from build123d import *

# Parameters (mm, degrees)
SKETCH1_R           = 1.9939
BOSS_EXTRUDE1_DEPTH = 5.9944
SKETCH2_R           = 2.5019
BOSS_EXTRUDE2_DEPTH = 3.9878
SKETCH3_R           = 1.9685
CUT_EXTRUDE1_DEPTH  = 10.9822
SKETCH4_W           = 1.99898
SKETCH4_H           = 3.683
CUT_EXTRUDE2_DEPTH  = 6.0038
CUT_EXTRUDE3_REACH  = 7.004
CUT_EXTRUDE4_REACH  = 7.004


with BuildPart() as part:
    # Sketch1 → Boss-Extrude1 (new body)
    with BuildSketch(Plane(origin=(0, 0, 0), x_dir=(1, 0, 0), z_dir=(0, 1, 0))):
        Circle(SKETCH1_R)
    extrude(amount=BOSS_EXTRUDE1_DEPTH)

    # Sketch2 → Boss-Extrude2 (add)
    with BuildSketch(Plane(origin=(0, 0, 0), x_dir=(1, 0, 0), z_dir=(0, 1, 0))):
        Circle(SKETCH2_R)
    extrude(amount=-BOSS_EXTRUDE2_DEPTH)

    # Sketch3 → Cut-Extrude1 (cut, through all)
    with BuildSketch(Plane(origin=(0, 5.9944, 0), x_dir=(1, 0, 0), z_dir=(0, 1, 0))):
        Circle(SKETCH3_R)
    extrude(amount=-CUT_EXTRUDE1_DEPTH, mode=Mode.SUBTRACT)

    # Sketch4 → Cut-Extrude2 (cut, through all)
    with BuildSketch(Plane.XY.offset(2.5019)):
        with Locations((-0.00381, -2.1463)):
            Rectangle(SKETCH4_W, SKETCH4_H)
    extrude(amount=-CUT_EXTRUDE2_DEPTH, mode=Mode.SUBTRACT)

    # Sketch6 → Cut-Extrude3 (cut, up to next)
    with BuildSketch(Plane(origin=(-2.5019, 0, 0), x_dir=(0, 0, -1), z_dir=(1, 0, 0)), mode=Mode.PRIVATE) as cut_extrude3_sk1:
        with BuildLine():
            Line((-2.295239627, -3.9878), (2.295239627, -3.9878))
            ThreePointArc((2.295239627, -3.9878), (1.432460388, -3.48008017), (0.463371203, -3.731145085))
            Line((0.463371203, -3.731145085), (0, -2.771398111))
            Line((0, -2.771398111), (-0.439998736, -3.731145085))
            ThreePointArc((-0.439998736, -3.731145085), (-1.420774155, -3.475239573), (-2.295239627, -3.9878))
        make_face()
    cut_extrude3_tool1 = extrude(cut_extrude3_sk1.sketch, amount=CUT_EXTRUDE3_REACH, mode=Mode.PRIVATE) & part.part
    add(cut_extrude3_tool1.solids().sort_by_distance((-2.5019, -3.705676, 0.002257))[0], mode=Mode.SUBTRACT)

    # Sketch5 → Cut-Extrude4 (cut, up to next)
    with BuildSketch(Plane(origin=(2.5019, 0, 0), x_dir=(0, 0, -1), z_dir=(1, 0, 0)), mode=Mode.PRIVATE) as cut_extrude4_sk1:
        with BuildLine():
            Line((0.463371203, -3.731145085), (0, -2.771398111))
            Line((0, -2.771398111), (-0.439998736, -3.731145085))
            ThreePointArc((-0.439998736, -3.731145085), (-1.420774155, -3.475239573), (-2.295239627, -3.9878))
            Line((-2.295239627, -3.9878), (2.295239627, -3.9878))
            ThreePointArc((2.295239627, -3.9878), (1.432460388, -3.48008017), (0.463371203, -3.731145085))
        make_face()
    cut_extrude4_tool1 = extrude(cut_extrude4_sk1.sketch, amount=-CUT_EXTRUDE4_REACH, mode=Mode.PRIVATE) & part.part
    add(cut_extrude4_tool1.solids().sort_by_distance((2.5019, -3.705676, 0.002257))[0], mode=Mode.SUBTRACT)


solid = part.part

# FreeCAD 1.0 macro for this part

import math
import FreeCAD as App
import Part
import Sketcher

V = App.Vector
Q = App.Units.Quantity


def add_polygon(sketch, points):
    """Adds a closed chain of lines whose ends are joined by coincident constraints."""
    first, n = sketch.GeometryCount, len(points)
    for a, b in zip(points, points[1:] + points[:1]):
        sketch.addGeometry(Part.LineSegment(App.Vector(*a, 0), App.Vector(*b, 0)), False)
    for i in range(n):
        sketch.addConstraint(Sketcher.Constraint("Coincident", first + i, 2, first + (i + 1) % n, 1))

doc = App.newDocument("Part")
body = doc.addObject("PartDesign::Body", "Body")

# Sketch on XZ plane
sketch1 = doc.addObject("Sketcher::SketchObject", "Sketch")
body.addObject(sketch1)
sketch1.AttachmentSupport = (doc.XZ_Plane, [""])
sketch1.MapMode = "FlatFace"
sketch1.addGeometry(Part.Circle(V(0, 0, 0), V(0, 0, 1), 2), False)
sketch1.addConstraint([
    Sketcher.Constraint("Coincident", 0, 3, -1, 1),
    Sketcher.Constraint("Diameter", 0, Q("0.157 in")),
])
pad1 = doc.addObject("PartDesign::Pad", "Pad")
body.addObject(pad1)
pad1.Profile = sketch1
pad1.Length = Q("0.236 in")
pad1.Reversed = True

# Sketch on XZ plane
sketch2 = doc.addObject("Sketcher::SketchObject", "Sketch001")
body.addObject(sketch2)
sketch2.AttachmentSupport = (doc.XZ_Plane, [""])
sketch2.MapMode = "FlatFace"
sketch2.addGeometry(Part.Circle(V(0, 0, 0), V(0, 0, 1), 2.5), False)
sketch2.addConstraint([
    Sketcher.Constraint("Coincident", 0, 3, -1, 1),
    Sketcher.Constraint("Diameter", 0, Q("0.197 in")),
])
pad2 = doc.addObject("PartDesign::Pad", "Pad001")
body.addObject(pad2)
pad2.Profile = sketch2
pad2.Length = Q("0.157 in")

# Sketch on XZ plane
sketch3 = doc.addObject("Sketcher::SketchObject", "Sketch002")
body.addObject(sketch3)
sketch3.AttachmentSupport = (doc.XZ_Plane, [""])
sketch3.MapMode = "FlatFace"
sketch3.AttachmentOffset = App.Placement(V(0, 0, -0.236 * 25.4), App.Rotation())
sketch3.addGeometry(Part.Circle(V(0, 0, 0), V(0, 0, 1), 2), False)
sketch3.addConstraint([
    Sketcher.Constraint("Coincident", 0, 3, -1, 1),
    Sketcher.Constraint("Diameter", 0, Q("0.155 in")),
])
pocket1 = doc.addObject("PartDesign::Pocket", "Pocket")
body.addObject(pocket1)
pocket1.Profile = sketch3
pocket1.Type = "ThroughAll"
pocket1.Reversed = True

# Sketch on XY plane
sketch4 = doc.addObject("Sketcher::SketchObject", "Sketch003")
body.addObject(sketch4)
sketch4.AttachmentSupport = (doc.XY_Plane, [""])
sketch4.MapMode = "FlatFace"
sketch4.AttachmentOffset = App.Placement(V(0, 0, 0.0985 * 25.4), App.Rotation())
add_polygon(sketch4, [(-1, -0.3), (-1, -4), (1, -4), (1, -0.3)])  # lines 0-3
sketch4.addConstraint([
    Sketcher.Constraint("Vertical", 0),
    Sketcher.Constraint("Horizontal", 1),
    Sketcher.Constraint("Vertical", 2),
    Sketcher.Constraint("Horizontal", 3),
    Sketcher.Constraint("DistanceY", 0, 2, 0, 1, Q("0.145 in")),
    Sketcher.Constraint("DistanceX", 1, 1, 1, 2, Q("0.0787 in")),
    Sketcher.Constraint("DistanceY", 0, 2, -1, 1, Q("0.157 in")),
    Sketcher.Constraint("DistanceX", 0, 2, -1, 1, Q("0.0395 in")),
])
pocket2 = doc.addObject("PartDesign::Pocket", "Pocket001")
body.addObject(pocket2)
pocket2.Profile = sketch4
pocket2.Type = "ThroughAll"

# Sketch on YZ plane
sketch5 = doc.addObject("Sketcher::SketchObject", "Sketch004")
body.addObject(sketch5)
sketch5.AttachmentSupport = (doc.YZ_Plane, [""])
sketch5.MapMode = "FlatFace"
sketch5.AttachmentOffset = App.Placement(V(0, 0, -0.0985 * 25.4), App.Rotation())
sketch5.addGeometry([
    Part.LineSegment(V(-4, 2.3, 0), V(-4, -2.3, 0)),  # 0
    Part.ArcOfCircle(Part.Circle(V(-4.8, -1.3, 0), V(0, 0, 1), 1.3), math.radians(-53), math.radians(37)),  # 1
    Part.LineSegment(V(-3.7, -0.5, 0), V(-2.8, 0, 0)),  # 2
    Part.LineSegment(V(-2.8, 0, 0), V(-3.7, 0.4, 0)),  # 3
    Part.ArcOfCircle(Part.Circle(V(-4.8, 1.2, 0), V(0, 0, 1), 1.3), math.radians(-37), math.radians(53)),  # 4
], False)
sketch5.addConstraint([
    Sketcher.Constraint("Coincident", 0, 2, 1, 1),
    Sketcher.Constraint("Coincident", 1, 2, 2, 1),
    Sketcher.Constraint("Coincident", 2, 2, 3, 1),
    Sketcher.Constraint("Coincident", 3, 2, 4, 1),
    Sketcher.Constraint("Coincident", 4, 2, 0, 1),
    Sketcher.Constraint("Vertical", 0),
    Sketcher.Constraint("PointOnObject", 2, 2, -1),
    Sketcher.Constraint("Vertical", 1, 2, 3, 2),
    Sketcher.Constraint("DistanceX", 0, 2, -1, 1, Q("0.157 in")),
    Sketcher.Constraint("Radius", 1, 1.307978),
    Sketcher.Constraint("Radius", 4, 1.324347),
    Sketcher.Constraint("Distance", 3, 1.0558),
    Sketcher.Constraint("DistanceY", 0, 2, 0, 1, 4.590479),
    Sketcher.Constraint("DistanceX", 2, 2, -1, 1, 2.771398),
    Sketcher.Constraint("DistanceY", -1, 1, 3, 2, 0.439999),
    Sketcher.Constraint("Distance", 2, 1.065752),
    Sketcher.Constraint("DistanceY", -1, 1, 4, 3, 1.239292),
])
pocket3 = doc.addObject("PartDesign::Pocket", "Pocket002")
body.addObject(pocket3)
pocket3.Profile = sketch5
pocket3.Length = Q("0.059 in")
pocket3.Reversed = True

# Sketch on YZ plane
sketch6 = doc.addObject("Sketcher::SketchObject", "Sketch005")
body.addObject(sketch6)
sketch6.AttachmentSupport = (doc.YZ_Plane, [""])
sketch6.MapMode = "FlatFace"
sketch6.AttachmentOffset = App.Placement(V(0, 0, 0.0985 * 25.4), App.Rotation())
sketch6.addGeometry([
    Part.LineSegment(V(-3.7, -0.5, 0), V(-2.8, 0, 0)),  # 0
    Part.LineSegment(V(-2.8, 0, 0), V(-3.7, 0.4, 0)),  # 1
    Part.ArcOfCircle(Part.Circle(V(-4.8, 1.2, 0), V(0, 0, 1), 1.3), math.radians(-37), math.radians(53)),  # 2
    Part.LineSegment(V(-4, 2.3, 0), V(-4, -2.3, 0)),  # 3
    Part.ArcOfCircle(Part.Circle(V(-4.8, -1.3, 0), V(0, 0, 1), 1.3), math.radians(-53), math.radians(37)),  # 4
], False)
sketch6.addConstraint([
    Sketcher.Constraint("Coincident", 0, 2, 1, 1),
    Sketcher.Constraint("Coincident", 1, 2, 2, 1),
    Sketcher.Constraint("Coincident", 2, 2, 3, 1),
    Sketcher.Constraint("Coincident", 3, 2, 4, 1),
    Sketcher.Constraint("Coincident", 4, 2, 0, 1),
    Sketcher.Constraint("Vertical", 3),
    Sketcher.Constraint("PointOnObject", 0, 2, -1),
    Sketcher.Constraint("Vertical", 1, 2, 4, 2),
    Sketcher.Constraint("DistanceX", 2, 2, -1, 1, Q("0.157 in")),
    Sketcher.Constraint("Radius", 4, 1.307978),
    Sketcher.Constraint("Radius", 2, 1.324347),
    Sketcher.Constraint("Distance", 1, 1.0558),
    Sketcher.Constraint("DistanceY", 3, 2, 3, 1, 4.590479),
    Sketcher.Constraint("DistanceX", 0, 2, -1, 1, 2.771398),
    Sketcher.Constraint("DistanceY", -1, 1, 1, 2, 0.439999),
    Sketcher.Constraint("Distance", 0, 1.065752),
    Sketcher.Constraint("DistanceY", -1, 1, 2, 3, 1.239292),
])
pocket4 = doc.addObject("PartDesign::Pocket", "Pocket003")
body.addObject(pocket4)
pocket4.Profile = sketch6
pocket4.Type = "UpToFirst"

doc.recompute()
